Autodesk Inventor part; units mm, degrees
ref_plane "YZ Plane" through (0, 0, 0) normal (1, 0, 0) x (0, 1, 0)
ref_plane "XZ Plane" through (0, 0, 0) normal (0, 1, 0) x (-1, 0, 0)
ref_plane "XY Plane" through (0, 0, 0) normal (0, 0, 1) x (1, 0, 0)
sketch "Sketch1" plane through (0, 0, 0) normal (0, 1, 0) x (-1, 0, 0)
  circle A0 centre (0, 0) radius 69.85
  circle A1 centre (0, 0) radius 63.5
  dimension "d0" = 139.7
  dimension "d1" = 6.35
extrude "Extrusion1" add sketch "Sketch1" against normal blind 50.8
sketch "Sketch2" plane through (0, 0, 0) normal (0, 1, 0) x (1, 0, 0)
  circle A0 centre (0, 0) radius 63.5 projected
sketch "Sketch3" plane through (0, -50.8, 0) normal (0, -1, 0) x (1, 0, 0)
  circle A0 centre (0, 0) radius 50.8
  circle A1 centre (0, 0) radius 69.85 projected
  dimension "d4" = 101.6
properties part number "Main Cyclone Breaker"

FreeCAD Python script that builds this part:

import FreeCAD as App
import Part
import Sketcher
from FreeCAD import Vector
Q = App.Units.Quantity

doc = App.newDocument("Part")
body = doc.addObject("PartDesign::Body", "Body")

# Sketch on XZ plane
sketch1 = body.newObject("Sketcher::SketchObject", "Sketch")
sketch1.AttachmentSupport = (doc.getObject("XZ_Plane"), [""])
sketch1.MapMode = "FlatFace"
sketch1.addGeometry([
    Part.Circle(Vector(0, 0, 0), Vector(0, 0, 1), 70),
    Part.Circle(Vector(0, 0, 0), Vector(0, 0, 1), 64),
], False)
sketch1.addConstraint([
    Sketcher.Constraint("Coincident", 0, 3, -1, 1),
    Sketcher.Constraint("Coincident", 1, 3, -1, 1),
    Sketcher.Constraint("Diameter", 0, Q("5.5 in")),
    Sketcher.Constraint("Diameter", 1, Q("5 in")),
])
pad1 = body.newObject("PartDesign::Pad", "Pad")
pad1.Profile = sketch1
pad1.Length = Q("2 in")

doc.recompute()
